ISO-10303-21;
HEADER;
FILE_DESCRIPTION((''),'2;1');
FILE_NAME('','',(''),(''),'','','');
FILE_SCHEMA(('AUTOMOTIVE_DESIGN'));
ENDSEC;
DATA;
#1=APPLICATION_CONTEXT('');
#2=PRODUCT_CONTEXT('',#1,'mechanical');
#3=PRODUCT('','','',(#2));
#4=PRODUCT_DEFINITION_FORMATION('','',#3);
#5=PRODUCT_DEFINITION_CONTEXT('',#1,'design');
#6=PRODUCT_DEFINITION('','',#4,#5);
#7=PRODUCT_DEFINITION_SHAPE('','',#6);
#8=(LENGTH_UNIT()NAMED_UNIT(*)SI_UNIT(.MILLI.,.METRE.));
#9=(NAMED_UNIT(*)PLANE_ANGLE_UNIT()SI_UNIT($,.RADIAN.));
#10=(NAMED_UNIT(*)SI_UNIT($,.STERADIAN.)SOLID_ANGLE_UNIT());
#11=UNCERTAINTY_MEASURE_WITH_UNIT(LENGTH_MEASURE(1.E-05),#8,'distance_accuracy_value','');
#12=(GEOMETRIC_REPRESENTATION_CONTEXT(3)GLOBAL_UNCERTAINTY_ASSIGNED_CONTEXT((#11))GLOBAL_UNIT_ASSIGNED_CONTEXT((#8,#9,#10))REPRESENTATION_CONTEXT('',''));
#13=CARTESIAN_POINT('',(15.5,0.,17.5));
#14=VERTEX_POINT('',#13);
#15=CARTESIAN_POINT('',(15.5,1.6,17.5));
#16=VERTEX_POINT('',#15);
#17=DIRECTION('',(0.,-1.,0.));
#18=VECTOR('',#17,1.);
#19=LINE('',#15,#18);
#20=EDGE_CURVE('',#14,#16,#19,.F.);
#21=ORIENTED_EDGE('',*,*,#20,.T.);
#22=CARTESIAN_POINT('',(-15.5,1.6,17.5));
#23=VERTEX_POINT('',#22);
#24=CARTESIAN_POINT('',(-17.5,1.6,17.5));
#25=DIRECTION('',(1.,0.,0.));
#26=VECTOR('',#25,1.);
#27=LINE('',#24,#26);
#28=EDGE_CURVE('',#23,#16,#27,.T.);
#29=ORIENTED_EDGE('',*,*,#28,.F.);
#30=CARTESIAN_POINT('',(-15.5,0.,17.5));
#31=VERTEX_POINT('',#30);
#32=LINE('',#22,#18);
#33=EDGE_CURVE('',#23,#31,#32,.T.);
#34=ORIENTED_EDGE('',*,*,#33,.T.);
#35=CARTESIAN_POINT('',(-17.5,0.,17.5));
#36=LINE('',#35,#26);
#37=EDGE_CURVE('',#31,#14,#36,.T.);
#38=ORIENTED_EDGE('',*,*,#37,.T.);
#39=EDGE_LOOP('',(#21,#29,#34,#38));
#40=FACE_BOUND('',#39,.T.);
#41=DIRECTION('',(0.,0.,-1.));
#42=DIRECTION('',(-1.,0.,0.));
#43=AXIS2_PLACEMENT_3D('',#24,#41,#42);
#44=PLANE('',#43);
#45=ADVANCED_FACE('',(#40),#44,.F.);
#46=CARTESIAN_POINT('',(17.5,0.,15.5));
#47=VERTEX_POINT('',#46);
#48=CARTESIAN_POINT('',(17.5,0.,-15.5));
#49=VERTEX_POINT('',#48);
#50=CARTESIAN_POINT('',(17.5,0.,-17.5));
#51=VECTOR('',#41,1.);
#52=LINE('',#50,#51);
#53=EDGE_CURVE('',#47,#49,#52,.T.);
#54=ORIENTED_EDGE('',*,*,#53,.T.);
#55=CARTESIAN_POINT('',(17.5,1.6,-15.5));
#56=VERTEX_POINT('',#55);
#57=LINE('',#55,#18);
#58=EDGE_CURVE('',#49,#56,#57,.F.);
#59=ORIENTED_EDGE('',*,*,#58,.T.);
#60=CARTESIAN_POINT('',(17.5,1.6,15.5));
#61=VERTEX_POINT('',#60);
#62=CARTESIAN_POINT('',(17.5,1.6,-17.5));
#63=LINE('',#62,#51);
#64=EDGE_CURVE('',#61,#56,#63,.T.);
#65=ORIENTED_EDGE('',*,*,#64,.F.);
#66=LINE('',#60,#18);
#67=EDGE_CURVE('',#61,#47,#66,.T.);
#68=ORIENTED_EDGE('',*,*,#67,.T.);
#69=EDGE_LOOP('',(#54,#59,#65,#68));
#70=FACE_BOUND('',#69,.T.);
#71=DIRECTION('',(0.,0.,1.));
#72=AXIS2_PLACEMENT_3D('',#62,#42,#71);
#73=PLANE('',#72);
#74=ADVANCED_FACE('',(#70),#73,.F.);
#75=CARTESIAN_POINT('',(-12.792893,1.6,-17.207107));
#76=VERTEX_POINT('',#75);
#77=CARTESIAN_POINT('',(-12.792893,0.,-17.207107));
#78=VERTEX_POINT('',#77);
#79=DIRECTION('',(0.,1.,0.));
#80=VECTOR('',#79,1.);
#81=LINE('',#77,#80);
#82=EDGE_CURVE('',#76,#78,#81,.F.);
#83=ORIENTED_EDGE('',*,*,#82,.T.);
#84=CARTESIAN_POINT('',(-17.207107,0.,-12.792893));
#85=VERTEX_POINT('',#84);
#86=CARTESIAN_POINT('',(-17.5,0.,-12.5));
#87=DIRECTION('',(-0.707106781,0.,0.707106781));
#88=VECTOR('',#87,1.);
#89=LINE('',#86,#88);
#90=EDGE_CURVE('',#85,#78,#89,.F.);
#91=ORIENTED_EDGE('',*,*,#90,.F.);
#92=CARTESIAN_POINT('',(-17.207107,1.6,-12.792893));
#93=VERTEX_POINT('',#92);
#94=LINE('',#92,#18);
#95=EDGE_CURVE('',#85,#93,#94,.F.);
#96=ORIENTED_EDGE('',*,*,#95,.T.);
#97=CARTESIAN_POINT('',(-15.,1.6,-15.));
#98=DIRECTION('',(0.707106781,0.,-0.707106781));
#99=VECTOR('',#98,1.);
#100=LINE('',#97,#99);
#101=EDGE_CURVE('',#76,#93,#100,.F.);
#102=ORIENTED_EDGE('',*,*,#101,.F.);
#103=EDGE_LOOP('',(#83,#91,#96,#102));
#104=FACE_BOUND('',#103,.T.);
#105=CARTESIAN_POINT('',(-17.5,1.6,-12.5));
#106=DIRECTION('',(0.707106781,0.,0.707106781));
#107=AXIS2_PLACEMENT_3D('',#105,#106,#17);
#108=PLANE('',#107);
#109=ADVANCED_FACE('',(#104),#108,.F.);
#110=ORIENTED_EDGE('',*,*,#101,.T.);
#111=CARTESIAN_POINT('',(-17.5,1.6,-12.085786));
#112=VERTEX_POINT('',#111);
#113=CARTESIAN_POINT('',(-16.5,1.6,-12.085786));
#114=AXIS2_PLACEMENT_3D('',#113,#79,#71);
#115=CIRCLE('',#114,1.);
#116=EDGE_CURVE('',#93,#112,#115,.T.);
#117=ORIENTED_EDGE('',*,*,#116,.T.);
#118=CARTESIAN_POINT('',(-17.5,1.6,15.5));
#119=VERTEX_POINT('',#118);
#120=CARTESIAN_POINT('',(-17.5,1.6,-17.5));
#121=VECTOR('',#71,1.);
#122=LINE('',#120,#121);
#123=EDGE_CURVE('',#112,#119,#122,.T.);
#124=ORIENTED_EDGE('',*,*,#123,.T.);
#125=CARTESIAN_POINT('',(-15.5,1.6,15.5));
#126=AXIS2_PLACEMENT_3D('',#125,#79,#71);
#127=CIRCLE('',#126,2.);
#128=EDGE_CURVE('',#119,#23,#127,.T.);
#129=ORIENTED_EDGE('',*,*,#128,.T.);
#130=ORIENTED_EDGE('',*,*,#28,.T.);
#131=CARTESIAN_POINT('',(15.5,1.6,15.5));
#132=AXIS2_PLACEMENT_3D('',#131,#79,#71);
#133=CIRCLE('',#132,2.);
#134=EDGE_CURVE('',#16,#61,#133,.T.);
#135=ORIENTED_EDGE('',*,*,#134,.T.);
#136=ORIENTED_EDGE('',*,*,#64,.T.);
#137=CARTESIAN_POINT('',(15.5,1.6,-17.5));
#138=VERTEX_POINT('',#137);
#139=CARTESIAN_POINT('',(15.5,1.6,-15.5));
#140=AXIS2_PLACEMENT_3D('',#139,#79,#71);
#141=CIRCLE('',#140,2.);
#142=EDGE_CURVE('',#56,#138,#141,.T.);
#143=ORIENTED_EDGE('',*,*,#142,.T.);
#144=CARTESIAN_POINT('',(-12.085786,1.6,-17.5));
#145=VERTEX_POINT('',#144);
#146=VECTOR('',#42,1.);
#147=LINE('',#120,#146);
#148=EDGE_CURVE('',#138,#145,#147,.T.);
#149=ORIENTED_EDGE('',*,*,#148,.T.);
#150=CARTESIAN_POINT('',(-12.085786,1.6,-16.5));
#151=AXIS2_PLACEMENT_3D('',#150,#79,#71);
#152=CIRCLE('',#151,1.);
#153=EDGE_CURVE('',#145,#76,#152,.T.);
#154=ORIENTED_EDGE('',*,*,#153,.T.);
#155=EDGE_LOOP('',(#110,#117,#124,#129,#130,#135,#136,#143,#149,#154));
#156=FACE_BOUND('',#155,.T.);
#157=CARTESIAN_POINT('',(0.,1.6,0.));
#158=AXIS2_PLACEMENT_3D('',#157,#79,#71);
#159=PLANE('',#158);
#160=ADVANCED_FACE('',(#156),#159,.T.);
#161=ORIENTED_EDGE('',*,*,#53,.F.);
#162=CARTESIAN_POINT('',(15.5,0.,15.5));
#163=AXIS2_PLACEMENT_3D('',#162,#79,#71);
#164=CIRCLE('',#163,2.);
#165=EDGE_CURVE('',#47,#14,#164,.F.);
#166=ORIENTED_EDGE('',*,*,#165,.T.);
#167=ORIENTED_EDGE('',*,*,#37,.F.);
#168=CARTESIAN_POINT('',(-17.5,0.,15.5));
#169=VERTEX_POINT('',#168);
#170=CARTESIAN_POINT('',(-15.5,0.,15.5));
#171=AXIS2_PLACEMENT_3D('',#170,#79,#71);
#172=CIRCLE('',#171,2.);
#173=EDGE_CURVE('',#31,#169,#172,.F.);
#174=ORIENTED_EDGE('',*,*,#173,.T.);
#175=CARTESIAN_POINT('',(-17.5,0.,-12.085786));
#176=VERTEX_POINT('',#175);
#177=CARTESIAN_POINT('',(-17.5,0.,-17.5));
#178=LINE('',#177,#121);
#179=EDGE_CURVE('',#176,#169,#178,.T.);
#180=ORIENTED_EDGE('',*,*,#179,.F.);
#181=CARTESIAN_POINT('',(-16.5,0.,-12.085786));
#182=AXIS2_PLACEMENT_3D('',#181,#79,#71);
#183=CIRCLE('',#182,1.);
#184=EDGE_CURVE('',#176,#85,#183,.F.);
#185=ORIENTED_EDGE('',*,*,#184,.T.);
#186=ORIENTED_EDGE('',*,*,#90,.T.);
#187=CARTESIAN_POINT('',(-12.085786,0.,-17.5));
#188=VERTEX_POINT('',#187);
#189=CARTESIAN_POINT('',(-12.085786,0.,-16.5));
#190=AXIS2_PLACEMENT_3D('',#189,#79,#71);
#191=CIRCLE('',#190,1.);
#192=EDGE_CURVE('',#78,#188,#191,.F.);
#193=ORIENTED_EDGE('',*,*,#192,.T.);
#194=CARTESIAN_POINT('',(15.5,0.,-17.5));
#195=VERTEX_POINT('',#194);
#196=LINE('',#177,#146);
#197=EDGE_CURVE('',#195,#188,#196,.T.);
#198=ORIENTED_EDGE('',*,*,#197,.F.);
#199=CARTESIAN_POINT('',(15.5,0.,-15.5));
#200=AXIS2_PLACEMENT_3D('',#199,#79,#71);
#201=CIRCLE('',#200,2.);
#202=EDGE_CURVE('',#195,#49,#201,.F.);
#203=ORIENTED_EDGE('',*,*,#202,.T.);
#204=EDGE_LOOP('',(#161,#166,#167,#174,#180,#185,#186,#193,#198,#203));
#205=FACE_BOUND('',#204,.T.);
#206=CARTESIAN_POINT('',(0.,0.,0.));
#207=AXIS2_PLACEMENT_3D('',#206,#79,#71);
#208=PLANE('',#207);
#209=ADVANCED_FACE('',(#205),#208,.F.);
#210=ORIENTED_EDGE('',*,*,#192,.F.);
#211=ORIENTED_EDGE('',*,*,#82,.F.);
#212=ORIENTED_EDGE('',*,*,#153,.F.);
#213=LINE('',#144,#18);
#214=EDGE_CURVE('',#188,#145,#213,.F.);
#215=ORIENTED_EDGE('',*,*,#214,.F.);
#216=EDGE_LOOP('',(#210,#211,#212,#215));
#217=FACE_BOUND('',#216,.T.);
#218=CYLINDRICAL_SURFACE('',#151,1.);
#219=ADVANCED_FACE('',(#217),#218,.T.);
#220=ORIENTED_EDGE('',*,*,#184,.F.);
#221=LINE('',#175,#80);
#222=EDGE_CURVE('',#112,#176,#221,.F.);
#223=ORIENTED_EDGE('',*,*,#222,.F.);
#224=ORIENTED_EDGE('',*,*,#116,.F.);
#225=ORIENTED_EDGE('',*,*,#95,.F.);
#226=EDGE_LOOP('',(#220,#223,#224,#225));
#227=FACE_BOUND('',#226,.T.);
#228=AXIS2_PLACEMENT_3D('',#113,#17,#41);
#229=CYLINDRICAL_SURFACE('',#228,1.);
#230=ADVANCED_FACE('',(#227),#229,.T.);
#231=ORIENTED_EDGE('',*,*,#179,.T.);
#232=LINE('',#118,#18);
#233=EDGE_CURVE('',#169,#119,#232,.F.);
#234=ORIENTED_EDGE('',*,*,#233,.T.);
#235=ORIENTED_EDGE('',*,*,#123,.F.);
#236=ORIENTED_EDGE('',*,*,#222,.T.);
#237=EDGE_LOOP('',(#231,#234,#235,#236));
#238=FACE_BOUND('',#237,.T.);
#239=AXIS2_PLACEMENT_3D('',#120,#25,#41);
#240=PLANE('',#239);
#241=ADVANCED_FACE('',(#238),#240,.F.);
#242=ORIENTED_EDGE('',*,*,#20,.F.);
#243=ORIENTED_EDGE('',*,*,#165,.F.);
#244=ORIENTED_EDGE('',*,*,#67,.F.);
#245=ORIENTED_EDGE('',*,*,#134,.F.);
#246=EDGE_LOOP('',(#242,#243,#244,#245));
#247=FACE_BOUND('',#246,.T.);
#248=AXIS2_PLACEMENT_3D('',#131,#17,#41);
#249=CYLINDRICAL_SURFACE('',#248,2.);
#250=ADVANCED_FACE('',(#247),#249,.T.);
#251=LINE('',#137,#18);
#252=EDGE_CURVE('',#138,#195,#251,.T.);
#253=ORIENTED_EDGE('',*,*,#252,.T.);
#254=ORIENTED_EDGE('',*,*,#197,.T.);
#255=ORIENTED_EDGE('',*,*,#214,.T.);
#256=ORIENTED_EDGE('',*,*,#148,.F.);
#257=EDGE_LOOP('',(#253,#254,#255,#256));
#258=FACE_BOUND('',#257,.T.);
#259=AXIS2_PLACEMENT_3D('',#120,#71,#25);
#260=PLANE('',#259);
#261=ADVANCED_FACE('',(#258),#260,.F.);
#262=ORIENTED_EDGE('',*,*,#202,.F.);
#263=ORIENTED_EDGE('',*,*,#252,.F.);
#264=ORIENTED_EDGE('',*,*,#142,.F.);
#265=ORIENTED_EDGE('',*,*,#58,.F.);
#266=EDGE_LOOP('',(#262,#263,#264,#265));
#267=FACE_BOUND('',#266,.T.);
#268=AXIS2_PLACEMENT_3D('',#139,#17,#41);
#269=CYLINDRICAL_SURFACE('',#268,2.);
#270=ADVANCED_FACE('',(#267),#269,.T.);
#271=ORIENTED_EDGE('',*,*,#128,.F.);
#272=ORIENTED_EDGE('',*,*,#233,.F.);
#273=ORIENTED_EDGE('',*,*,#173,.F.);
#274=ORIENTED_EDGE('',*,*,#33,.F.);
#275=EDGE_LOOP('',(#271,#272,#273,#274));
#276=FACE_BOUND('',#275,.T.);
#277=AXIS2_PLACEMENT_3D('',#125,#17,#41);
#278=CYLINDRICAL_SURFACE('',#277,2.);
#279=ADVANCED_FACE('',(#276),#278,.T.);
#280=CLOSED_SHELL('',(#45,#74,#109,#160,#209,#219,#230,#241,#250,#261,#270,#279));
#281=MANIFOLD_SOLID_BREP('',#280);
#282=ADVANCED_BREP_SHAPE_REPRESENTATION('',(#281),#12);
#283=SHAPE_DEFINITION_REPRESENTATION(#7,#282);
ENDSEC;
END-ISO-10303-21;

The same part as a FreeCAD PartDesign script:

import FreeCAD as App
import Part
import Sketcher
from FreeCAD import Vector


def edges_at(feature, points):
    """Names of the edges that pass closest to the given points."""
    edges = feature.Shape.Edges
    near = lambda p: min(range(len(edges)), key=lambda i: edges[i].distToShape(Part.Vertex(*p))[0])
    return sorted({f"Edge{near(p) + 1}" for p in points})

doc = App.newDocument("Part")
body = doc.addObject("PartDesign::Body", "Body")

sketch1 = body.newObject("Sketcher::SketchObject", "Sketch")
sketch1.AttachmentSupport = (doc.getObject("XZ_Plane"), [""])
sketch1.MapMode = "FlatFace"
sketch1.addGeometry([
    Part.LineSegment(Vector(-18, -18, 0), Vector(-18, 18, 0)),
    Part.LineSegment(Vector(-18, 18, 0), Vector(18, 18, 0)),
    Part.LineSegment(Vector(18, 18, 0), Vector(18, -18, 0)),
    Part.LineSegment(Vector(18, -18, 0), Vector(-18, -18, 0)),
], False)
sketch1.addConstraint([
    Sketcher.Constraint("Coincident", 0, 2, 1, 1),
    Sketcher.Constraint("Coincident", 1, 2, 2, 1),
    Sketcher.Constraint("Coincident", 2, 2, 3, 1),
    Sketcher.Constraint("Coincident", 3, 2, 0, 1),
    Sketcher.Constraint("Vertical", 0),
    Sketcher.Constraint("Horizontal", 1),
    Sketcher.Constraint("Vertical", 2),
    Sketcher.Constraint("Horizontal", 3),
    Sketcher.Constraint("Symmetric", 0, 2, 2, 2, -1, 1),
    Sketcher.Constraint("Equal", 3, 0),
    Sketcher.Constraint("DistanceX", 1, 1, 1, 2, 35.0),
])
pad1 = body.newObject("PartDesign::Pad", "Pad")
pad1.Profile = sketch1
pad1.Length = 1.6
pad1.Reversed = True
doc.recompute()

chamfer = body.newObject("PartDesign::Chamfer", "Chamfer")
chamfer.Base = (pad1, edges_at(pad1, [(-17.5, 0.8, -17.5)]))
chamfer.Size = 5
doc.recompute()

fillet = body.newObject("PartDesign::Fillet", "Fillet")
fillet.Base = (chamfer, edges_at(chamfer, [(-17.5, 0.8, -12.5), (-12.5, 0.8, -17.5)]))
fillet.Radius = 1
doc.recompute()

fillet2 = body.newObject("PartDesign::Fillet", "Fillet001")
fillet2.Base = (fillet, edges_at(fillet, [(17.5, 0.8, 17.5), (-17.5, 0.8, 17.5), (17.5, 0.8, -17.5)]))
fillet2.Radius = 2

doc.recompute()
